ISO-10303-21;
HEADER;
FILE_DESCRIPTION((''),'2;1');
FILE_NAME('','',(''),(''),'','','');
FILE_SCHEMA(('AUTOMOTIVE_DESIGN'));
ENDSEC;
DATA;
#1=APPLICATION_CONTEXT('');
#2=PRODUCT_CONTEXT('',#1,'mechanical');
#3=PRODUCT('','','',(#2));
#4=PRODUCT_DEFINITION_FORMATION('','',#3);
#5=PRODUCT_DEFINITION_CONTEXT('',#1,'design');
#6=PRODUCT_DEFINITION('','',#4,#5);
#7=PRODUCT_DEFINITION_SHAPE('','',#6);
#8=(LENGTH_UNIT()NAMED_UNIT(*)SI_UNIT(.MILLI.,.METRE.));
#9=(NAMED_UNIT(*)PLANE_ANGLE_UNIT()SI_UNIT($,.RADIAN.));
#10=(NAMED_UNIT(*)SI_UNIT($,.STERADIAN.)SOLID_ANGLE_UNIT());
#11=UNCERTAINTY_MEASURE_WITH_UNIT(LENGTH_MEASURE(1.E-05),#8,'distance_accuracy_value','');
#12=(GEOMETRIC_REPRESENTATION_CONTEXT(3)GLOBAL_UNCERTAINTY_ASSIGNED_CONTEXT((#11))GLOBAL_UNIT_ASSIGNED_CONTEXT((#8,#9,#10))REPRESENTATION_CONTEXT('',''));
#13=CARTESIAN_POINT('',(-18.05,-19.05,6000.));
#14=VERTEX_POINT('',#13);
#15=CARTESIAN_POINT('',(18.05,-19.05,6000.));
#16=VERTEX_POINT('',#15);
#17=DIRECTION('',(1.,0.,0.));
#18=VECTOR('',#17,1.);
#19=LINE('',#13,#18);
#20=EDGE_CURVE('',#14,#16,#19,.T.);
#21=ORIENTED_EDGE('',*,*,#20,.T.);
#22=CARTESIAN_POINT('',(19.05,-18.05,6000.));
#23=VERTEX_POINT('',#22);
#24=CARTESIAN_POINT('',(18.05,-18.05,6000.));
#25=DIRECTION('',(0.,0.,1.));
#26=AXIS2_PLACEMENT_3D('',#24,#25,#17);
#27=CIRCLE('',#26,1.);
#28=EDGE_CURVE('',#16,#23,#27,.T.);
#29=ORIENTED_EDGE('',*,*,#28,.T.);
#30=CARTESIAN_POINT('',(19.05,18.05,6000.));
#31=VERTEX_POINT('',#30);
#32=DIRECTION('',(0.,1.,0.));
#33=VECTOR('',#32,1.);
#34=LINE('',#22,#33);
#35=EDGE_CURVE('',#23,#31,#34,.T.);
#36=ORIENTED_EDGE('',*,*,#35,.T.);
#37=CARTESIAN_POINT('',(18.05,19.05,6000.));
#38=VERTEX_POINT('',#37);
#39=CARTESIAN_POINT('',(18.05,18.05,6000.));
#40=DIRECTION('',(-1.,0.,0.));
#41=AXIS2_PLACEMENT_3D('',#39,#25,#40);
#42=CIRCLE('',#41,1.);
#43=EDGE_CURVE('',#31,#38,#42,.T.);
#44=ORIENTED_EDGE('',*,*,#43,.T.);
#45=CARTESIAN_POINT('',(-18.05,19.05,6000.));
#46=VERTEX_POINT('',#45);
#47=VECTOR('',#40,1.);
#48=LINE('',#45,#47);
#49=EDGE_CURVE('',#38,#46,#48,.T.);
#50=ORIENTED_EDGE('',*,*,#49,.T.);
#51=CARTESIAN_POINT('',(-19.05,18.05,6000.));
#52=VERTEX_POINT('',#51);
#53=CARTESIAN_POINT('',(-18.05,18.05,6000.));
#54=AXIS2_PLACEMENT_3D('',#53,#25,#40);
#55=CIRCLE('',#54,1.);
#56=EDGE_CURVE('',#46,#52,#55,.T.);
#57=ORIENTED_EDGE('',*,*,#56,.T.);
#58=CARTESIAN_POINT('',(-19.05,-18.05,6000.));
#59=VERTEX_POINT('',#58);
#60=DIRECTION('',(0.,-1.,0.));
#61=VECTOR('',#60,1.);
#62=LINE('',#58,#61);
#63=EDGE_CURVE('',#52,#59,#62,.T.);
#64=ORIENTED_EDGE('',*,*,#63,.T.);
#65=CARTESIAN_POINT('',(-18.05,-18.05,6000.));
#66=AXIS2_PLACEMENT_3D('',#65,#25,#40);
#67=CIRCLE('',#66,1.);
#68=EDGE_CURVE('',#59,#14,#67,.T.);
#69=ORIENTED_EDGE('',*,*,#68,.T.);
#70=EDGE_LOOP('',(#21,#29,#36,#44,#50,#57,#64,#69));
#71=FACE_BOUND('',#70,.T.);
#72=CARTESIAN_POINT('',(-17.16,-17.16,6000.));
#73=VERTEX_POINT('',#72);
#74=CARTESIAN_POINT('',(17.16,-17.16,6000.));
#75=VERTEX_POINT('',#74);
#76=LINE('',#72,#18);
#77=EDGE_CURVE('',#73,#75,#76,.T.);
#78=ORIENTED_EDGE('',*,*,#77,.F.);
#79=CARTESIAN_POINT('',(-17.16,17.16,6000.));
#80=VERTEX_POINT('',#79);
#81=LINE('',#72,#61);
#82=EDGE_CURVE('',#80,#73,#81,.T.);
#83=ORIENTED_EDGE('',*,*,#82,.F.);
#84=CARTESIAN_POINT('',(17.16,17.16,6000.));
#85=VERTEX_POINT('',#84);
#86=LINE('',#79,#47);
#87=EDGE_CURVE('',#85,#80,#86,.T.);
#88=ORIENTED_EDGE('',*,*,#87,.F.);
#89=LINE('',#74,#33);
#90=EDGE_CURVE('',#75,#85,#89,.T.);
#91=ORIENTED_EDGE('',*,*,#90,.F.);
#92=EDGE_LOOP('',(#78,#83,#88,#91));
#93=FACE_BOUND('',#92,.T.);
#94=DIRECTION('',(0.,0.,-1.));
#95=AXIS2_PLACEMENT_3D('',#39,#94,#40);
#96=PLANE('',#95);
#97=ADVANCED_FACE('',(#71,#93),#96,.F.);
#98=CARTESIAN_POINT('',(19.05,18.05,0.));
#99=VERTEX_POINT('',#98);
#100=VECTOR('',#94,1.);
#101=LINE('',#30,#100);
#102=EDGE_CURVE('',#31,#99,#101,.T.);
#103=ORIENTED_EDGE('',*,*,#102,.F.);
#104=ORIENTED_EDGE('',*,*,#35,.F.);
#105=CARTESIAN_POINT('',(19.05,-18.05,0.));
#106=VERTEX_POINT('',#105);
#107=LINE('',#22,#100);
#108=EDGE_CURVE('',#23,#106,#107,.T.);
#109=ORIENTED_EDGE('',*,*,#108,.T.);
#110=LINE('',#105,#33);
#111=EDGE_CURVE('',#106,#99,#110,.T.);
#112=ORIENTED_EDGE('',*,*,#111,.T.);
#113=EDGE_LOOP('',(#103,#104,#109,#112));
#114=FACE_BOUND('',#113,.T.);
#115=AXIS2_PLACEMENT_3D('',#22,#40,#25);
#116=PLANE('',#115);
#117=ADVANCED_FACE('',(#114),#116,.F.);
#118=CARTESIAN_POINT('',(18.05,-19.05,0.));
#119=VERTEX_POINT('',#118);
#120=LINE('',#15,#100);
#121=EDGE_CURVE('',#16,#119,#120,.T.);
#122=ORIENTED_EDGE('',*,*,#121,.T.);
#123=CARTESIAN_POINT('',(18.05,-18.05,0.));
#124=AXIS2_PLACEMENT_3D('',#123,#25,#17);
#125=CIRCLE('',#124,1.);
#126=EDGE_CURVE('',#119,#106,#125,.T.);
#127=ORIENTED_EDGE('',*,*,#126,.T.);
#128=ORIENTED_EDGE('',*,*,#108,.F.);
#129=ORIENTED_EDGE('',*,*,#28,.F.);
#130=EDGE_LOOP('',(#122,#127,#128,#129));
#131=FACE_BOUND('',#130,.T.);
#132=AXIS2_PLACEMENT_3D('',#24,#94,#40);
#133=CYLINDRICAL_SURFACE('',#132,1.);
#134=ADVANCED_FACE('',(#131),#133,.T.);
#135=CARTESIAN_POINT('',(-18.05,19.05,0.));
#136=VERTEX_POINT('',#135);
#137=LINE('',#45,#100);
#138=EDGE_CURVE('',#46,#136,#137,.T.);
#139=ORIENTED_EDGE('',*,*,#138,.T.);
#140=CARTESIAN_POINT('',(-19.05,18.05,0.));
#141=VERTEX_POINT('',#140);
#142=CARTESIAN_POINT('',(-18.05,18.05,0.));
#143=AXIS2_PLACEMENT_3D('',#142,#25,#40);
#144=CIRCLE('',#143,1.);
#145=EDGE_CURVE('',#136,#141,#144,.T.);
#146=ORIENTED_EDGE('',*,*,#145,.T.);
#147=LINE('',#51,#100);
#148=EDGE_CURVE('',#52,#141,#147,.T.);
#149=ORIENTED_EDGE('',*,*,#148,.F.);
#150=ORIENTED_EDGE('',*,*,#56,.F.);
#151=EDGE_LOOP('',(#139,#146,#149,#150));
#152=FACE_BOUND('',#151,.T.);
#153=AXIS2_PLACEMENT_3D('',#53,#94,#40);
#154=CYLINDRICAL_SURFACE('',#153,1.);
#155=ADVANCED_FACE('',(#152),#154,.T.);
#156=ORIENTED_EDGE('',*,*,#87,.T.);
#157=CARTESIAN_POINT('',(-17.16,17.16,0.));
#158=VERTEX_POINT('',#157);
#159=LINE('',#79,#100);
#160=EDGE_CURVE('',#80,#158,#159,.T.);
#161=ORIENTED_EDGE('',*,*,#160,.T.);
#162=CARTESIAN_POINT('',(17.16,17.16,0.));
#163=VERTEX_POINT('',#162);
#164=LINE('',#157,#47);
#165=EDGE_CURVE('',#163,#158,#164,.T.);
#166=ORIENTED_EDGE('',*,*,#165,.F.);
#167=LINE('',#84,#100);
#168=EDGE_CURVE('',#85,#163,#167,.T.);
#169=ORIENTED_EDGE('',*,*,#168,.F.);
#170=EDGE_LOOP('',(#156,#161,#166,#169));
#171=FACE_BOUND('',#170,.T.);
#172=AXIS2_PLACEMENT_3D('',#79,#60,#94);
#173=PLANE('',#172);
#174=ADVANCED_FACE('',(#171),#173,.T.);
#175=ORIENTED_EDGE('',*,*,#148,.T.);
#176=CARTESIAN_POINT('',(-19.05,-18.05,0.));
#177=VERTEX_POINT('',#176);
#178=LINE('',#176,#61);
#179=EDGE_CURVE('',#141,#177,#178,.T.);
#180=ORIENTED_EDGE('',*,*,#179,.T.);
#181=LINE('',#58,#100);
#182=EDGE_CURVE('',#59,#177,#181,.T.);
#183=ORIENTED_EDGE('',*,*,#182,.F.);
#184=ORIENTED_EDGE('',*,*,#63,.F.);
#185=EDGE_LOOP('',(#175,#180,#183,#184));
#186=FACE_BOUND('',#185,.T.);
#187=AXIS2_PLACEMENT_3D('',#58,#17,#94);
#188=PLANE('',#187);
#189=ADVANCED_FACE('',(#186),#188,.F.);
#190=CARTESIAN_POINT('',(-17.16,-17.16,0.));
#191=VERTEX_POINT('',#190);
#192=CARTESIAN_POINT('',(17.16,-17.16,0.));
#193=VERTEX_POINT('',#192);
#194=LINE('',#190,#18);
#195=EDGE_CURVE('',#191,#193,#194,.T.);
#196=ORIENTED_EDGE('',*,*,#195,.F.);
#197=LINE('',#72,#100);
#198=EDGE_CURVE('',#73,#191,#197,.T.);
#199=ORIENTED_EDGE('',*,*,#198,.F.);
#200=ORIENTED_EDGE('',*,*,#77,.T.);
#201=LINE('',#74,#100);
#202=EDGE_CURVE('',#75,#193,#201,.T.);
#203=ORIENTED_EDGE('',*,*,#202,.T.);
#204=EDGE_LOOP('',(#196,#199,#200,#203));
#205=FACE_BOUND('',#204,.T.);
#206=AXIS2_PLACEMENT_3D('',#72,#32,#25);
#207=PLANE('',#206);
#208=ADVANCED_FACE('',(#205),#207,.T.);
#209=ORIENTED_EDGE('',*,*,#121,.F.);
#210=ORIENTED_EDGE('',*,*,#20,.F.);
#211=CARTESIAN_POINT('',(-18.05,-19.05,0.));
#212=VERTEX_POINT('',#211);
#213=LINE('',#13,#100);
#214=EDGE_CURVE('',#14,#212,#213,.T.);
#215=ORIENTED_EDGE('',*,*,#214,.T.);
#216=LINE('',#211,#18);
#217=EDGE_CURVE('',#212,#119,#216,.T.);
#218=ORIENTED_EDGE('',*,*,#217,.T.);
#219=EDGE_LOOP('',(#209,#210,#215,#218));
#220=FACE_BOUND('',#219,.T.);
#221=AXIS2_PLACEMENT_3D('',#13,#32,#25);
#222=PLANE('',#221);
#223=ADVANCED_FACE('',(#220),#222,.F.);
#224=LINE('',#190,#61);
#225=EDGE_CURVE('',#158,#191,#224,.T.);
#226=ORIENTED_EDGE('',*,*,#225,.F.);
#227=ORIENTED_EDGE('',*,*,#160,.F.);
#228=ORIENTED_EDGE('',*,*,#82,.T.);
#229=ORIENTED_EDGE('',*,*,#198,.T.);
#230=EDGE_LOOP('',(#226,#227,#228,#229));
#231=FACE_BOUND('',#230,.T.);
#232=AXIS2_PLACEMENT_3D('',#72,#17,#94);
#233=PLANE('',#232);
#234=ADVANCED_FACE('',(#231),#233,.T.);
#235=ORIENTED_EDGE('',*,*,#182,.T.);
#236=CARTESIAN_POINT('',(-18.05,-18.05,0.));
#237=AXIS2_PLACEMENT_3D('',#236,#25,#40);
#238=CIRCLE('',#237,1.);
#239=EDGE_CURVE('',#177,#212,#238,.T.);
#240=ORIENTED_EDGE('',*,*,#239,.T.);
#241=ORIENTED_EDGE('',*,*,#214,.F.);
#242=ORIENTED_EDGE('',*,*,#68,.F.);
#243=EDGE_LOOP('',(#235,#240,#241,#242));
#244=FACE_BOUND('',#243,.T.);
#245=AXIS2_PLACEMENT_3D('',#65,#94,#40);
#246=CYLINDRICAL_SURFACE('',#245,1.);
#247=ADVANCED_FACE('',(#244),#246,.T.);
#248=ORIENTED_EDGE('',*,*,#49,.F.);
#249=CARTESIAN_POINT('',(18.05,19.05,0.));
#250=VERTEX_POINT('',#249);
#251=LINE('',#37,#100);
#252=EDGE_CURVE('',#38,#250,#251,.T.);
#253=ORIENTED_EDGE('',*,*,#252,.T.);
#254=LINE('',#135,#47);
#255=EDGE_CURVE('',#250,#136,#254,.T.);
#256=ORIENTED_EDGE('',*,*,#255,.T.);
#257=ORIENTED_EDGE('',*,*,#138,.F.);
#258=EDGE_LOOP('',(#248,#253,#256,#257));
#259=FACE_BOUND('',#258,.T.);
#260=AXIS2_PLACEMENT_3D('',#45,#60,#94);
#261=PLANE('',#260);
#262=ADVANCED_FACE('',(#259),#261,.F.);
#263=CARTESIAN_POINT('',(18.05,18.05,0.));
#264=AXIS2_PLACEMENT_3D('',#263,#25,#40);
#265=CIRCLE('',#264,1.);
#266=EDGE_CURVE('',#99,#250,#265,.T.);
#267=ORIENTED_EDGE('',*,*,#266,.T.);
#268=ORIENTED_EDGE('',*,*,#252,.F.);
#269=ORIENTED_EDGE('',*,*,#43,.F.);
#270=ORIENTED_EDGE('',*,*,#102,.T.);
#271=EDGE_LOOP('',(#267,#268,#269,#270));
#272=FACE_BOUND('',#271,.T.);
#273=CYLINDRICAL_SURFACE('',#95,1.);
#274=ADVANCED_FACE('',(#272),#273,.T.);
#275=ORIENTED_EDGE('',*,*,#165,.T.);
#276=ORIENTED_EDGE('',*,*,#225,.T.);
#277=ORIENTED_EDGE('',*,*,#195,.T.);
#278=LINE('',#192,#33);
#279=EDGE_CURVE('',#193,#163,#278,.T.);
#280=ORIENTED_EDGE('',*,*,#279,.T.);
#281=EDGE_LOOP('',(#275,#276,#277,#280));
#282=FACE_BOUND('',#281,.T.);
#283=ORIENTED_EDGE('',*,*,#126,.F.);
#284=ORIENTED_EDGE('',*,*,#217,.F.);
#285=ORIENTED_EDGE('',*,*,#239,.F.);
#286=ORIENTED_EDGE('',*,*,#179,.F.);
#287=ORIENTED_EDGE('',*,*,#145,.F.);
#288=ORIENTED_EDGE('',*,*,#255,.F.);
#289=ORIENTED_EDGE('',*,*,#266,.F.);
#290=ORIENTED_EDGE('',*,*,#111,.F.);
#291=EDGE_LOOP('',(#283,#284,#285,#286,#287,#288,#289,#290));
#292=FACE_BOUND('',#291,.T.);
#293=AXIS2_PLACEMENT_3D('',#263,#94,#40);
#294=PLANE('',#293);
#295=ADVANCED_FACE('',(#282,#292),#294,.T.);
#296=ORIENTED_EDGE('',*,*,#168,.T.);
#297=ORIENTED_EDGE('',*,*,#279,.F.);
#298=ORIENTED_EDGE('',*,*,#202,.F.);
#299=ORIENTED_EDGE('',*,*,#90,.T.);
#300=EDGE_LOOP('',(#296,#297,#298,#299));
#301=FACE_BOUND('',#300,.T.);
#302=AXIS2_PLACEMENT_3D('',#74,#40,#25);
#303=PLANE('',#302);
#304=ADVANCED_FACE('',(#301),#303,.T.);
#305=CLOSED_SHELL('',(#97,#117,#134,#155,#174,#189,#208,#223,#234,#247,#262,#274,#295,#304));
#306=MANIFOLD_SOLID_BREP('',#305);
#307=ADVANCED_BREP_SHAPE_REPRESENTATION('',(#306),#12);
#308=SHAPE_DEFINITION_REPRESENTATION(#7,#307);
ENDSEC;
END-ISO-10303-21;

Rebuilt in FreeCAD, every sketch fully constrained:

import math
import FreeCAD as App
import Part
import Sketcher
from FreeCAD import Vector
Q = App.Units.Quantity


def add_polygon(sketch, points):
    """Adds a closed chain of lines whose ends are joined by coincident constraints."""
    first, n = sketch.GeometryCount, len(points)
    for a, b in zip(points, points[1:] + points[:1]):
        sketch.addGeometry(Part.LineSegment(App.Vector(*a, 0), App.Vector(*b, 0)), False)
    for i in range(n):
        sketch.addConstraint(Sketcher.Constraint("Coincident", first + i, 2, first + (i + 1) % n, 1))

doc = App.newDocument("Part")
body = doc.addObject("PartDesign::Body", "Body")

# Sketch on XY plane
sketch1 = body.newObject("Sketcher::SketchObject", "Sketch")
sketch1.AttachmentSupport = (doc.getObject("XY_Plane"), [""])
sketch1.MapMode = "FlatFace"
sketch1.addGeometry(Part.LineSegment(Vector(-18.1, -19.1, 0), Vector(18.1, -19.1, 0)), False)  # 0
sketch1.addGeometry(Part.ArcOfCircle(Part.Circle(Vector(18, -18, 0), Vector(0, 0, 1), 1), math.radians(-90), math.radians(0)), False)  # 1
sketch1.addGeometry(Part.LineSegment(Vector(19.1, -18.1, 0), Vector(19.1, 18.1, 0)), False)  # 2
sketch1.addGeometry(Part.ArcOfCircle(Part.Circle(Vector(18, 18, 0), Vector(0, 0, 1), 1), math.radians(0), math.radians(90)), False)  # 3
sketch1.addGeometry(Part.LineSegment(Vector(18.1, 19.1, 0), Vector(-18.1, 19.1, 0)), False)  # 4
sketch1.addGeometry(Part.ArcOfCircle(Part.Circle(Vector(-18, 18, 0), Vector(0, 0, 1), 1), math.radians(90), math.radians(180)), False)  # 5
sketch1.addGeometry(Part.LineSegment(Vector(-19.1, 18.1, 0), Vector(-19.1, -18.1, 0)), False)  # 6
sketch1.addGeometry(Part.ArcOfCircle(Part.Circle(Vector(-18, -18, 0), Vector(0, 0, 1), 1), math.radians(-180), math.radians(-90)), False)  # 7
add_polygon(sketch1, [(17.2, -17.2), (-17.2, -17.2), (-17.2, 17.2), (17.2, 17.2)])  # lines 8-11
sketch1.addConstraint(Sketcher.Constraint("Tangent", 0, 2, 1, 1))
sketch1.addConstraint(Sketcher.Constraint("Tangent", 1, 2, 2, 1))
sketch1.addConstraint(Sketcher.Constraint("Tangent", 2, 2, 3, 1))
sketch1.addConstraint(Sketcher.Constraint("Tangent", 3, 2, 4, 1))
sketch1.addConstraint(Sketcher.Constraint("Tangent", 4, 2, 5, 1))
sketch1.addConstraint(Sketcher.Constraint("Tangent", 5, 2, 6, 1))
sketch1.addConstraint(Sketcher.Constraint("Tangent", 6, 2, 7, 1))
sketch1.addConstraint(Sketcher.Constraint("Tangent", 7, 2, 0, 1))
sketch1.addConstraint(Sketcher.Constraint("Horizontal", 0))
sketch1.addConstraint(Sketcher.Constraint("Vertical", 2))
sketch1.addConstraint(Sketcher.Constraint("Horizontal", 4))
sketch1.addConstraint(Sketcher.Constraint("Vertical", 6))
sketch1.addConstraint(Sketcher.Constraint("Horizontal", 8))
sketch1.addConstraint(Sketcher.Constraint("Vertical", 9))
sketch1.addConstraint(Sketcher.Constraint("Horizontal", 10))
sketch1.addConstraint(Sketcher.Constraint("Vertical", 11))
sketch1.addConstraint(Sketcher.Constraint("Equal", 1, 3))
sketch1.addConstraint(Sketcher.Constraint("Equal", 3, 5))
sketch1.addConstraint(Sketcher.Constraint("Equal", 5, 7))
sketch1.addConstraint(Sketcher.Constraint("Symmetric", 1, 3, 5, 3, -1, 1))
sketch1.addConstraint(Sketcher.Constraint("Symmetric", 8, 2, 10, 2, -1, 1))
sketch1.addConstraint(Sketcher.Constraint("Equal", 4, 2))
sketch1.addConstraint(Sketcher.Constraint("Equal", 10, 9))
sketch1.addConstraint(Sketcher.Constraint("Radius", 1, Q("1 mm")))
sketch1.addConstraint(Sketcher.Constraint("DistanceX", 0, 1, 0, 2, Q("36.1 mm")))
sketch1.addConstraint(Sketcher.Constraint("DistanceX", 8, 2, 8, 1, Q("34.32 mm")))
pad1 = body.newObject("PartDesign::Pad", "Pad")
pad1.Profile = sketch1
pad1.Length = 6000

doc.recompute()
